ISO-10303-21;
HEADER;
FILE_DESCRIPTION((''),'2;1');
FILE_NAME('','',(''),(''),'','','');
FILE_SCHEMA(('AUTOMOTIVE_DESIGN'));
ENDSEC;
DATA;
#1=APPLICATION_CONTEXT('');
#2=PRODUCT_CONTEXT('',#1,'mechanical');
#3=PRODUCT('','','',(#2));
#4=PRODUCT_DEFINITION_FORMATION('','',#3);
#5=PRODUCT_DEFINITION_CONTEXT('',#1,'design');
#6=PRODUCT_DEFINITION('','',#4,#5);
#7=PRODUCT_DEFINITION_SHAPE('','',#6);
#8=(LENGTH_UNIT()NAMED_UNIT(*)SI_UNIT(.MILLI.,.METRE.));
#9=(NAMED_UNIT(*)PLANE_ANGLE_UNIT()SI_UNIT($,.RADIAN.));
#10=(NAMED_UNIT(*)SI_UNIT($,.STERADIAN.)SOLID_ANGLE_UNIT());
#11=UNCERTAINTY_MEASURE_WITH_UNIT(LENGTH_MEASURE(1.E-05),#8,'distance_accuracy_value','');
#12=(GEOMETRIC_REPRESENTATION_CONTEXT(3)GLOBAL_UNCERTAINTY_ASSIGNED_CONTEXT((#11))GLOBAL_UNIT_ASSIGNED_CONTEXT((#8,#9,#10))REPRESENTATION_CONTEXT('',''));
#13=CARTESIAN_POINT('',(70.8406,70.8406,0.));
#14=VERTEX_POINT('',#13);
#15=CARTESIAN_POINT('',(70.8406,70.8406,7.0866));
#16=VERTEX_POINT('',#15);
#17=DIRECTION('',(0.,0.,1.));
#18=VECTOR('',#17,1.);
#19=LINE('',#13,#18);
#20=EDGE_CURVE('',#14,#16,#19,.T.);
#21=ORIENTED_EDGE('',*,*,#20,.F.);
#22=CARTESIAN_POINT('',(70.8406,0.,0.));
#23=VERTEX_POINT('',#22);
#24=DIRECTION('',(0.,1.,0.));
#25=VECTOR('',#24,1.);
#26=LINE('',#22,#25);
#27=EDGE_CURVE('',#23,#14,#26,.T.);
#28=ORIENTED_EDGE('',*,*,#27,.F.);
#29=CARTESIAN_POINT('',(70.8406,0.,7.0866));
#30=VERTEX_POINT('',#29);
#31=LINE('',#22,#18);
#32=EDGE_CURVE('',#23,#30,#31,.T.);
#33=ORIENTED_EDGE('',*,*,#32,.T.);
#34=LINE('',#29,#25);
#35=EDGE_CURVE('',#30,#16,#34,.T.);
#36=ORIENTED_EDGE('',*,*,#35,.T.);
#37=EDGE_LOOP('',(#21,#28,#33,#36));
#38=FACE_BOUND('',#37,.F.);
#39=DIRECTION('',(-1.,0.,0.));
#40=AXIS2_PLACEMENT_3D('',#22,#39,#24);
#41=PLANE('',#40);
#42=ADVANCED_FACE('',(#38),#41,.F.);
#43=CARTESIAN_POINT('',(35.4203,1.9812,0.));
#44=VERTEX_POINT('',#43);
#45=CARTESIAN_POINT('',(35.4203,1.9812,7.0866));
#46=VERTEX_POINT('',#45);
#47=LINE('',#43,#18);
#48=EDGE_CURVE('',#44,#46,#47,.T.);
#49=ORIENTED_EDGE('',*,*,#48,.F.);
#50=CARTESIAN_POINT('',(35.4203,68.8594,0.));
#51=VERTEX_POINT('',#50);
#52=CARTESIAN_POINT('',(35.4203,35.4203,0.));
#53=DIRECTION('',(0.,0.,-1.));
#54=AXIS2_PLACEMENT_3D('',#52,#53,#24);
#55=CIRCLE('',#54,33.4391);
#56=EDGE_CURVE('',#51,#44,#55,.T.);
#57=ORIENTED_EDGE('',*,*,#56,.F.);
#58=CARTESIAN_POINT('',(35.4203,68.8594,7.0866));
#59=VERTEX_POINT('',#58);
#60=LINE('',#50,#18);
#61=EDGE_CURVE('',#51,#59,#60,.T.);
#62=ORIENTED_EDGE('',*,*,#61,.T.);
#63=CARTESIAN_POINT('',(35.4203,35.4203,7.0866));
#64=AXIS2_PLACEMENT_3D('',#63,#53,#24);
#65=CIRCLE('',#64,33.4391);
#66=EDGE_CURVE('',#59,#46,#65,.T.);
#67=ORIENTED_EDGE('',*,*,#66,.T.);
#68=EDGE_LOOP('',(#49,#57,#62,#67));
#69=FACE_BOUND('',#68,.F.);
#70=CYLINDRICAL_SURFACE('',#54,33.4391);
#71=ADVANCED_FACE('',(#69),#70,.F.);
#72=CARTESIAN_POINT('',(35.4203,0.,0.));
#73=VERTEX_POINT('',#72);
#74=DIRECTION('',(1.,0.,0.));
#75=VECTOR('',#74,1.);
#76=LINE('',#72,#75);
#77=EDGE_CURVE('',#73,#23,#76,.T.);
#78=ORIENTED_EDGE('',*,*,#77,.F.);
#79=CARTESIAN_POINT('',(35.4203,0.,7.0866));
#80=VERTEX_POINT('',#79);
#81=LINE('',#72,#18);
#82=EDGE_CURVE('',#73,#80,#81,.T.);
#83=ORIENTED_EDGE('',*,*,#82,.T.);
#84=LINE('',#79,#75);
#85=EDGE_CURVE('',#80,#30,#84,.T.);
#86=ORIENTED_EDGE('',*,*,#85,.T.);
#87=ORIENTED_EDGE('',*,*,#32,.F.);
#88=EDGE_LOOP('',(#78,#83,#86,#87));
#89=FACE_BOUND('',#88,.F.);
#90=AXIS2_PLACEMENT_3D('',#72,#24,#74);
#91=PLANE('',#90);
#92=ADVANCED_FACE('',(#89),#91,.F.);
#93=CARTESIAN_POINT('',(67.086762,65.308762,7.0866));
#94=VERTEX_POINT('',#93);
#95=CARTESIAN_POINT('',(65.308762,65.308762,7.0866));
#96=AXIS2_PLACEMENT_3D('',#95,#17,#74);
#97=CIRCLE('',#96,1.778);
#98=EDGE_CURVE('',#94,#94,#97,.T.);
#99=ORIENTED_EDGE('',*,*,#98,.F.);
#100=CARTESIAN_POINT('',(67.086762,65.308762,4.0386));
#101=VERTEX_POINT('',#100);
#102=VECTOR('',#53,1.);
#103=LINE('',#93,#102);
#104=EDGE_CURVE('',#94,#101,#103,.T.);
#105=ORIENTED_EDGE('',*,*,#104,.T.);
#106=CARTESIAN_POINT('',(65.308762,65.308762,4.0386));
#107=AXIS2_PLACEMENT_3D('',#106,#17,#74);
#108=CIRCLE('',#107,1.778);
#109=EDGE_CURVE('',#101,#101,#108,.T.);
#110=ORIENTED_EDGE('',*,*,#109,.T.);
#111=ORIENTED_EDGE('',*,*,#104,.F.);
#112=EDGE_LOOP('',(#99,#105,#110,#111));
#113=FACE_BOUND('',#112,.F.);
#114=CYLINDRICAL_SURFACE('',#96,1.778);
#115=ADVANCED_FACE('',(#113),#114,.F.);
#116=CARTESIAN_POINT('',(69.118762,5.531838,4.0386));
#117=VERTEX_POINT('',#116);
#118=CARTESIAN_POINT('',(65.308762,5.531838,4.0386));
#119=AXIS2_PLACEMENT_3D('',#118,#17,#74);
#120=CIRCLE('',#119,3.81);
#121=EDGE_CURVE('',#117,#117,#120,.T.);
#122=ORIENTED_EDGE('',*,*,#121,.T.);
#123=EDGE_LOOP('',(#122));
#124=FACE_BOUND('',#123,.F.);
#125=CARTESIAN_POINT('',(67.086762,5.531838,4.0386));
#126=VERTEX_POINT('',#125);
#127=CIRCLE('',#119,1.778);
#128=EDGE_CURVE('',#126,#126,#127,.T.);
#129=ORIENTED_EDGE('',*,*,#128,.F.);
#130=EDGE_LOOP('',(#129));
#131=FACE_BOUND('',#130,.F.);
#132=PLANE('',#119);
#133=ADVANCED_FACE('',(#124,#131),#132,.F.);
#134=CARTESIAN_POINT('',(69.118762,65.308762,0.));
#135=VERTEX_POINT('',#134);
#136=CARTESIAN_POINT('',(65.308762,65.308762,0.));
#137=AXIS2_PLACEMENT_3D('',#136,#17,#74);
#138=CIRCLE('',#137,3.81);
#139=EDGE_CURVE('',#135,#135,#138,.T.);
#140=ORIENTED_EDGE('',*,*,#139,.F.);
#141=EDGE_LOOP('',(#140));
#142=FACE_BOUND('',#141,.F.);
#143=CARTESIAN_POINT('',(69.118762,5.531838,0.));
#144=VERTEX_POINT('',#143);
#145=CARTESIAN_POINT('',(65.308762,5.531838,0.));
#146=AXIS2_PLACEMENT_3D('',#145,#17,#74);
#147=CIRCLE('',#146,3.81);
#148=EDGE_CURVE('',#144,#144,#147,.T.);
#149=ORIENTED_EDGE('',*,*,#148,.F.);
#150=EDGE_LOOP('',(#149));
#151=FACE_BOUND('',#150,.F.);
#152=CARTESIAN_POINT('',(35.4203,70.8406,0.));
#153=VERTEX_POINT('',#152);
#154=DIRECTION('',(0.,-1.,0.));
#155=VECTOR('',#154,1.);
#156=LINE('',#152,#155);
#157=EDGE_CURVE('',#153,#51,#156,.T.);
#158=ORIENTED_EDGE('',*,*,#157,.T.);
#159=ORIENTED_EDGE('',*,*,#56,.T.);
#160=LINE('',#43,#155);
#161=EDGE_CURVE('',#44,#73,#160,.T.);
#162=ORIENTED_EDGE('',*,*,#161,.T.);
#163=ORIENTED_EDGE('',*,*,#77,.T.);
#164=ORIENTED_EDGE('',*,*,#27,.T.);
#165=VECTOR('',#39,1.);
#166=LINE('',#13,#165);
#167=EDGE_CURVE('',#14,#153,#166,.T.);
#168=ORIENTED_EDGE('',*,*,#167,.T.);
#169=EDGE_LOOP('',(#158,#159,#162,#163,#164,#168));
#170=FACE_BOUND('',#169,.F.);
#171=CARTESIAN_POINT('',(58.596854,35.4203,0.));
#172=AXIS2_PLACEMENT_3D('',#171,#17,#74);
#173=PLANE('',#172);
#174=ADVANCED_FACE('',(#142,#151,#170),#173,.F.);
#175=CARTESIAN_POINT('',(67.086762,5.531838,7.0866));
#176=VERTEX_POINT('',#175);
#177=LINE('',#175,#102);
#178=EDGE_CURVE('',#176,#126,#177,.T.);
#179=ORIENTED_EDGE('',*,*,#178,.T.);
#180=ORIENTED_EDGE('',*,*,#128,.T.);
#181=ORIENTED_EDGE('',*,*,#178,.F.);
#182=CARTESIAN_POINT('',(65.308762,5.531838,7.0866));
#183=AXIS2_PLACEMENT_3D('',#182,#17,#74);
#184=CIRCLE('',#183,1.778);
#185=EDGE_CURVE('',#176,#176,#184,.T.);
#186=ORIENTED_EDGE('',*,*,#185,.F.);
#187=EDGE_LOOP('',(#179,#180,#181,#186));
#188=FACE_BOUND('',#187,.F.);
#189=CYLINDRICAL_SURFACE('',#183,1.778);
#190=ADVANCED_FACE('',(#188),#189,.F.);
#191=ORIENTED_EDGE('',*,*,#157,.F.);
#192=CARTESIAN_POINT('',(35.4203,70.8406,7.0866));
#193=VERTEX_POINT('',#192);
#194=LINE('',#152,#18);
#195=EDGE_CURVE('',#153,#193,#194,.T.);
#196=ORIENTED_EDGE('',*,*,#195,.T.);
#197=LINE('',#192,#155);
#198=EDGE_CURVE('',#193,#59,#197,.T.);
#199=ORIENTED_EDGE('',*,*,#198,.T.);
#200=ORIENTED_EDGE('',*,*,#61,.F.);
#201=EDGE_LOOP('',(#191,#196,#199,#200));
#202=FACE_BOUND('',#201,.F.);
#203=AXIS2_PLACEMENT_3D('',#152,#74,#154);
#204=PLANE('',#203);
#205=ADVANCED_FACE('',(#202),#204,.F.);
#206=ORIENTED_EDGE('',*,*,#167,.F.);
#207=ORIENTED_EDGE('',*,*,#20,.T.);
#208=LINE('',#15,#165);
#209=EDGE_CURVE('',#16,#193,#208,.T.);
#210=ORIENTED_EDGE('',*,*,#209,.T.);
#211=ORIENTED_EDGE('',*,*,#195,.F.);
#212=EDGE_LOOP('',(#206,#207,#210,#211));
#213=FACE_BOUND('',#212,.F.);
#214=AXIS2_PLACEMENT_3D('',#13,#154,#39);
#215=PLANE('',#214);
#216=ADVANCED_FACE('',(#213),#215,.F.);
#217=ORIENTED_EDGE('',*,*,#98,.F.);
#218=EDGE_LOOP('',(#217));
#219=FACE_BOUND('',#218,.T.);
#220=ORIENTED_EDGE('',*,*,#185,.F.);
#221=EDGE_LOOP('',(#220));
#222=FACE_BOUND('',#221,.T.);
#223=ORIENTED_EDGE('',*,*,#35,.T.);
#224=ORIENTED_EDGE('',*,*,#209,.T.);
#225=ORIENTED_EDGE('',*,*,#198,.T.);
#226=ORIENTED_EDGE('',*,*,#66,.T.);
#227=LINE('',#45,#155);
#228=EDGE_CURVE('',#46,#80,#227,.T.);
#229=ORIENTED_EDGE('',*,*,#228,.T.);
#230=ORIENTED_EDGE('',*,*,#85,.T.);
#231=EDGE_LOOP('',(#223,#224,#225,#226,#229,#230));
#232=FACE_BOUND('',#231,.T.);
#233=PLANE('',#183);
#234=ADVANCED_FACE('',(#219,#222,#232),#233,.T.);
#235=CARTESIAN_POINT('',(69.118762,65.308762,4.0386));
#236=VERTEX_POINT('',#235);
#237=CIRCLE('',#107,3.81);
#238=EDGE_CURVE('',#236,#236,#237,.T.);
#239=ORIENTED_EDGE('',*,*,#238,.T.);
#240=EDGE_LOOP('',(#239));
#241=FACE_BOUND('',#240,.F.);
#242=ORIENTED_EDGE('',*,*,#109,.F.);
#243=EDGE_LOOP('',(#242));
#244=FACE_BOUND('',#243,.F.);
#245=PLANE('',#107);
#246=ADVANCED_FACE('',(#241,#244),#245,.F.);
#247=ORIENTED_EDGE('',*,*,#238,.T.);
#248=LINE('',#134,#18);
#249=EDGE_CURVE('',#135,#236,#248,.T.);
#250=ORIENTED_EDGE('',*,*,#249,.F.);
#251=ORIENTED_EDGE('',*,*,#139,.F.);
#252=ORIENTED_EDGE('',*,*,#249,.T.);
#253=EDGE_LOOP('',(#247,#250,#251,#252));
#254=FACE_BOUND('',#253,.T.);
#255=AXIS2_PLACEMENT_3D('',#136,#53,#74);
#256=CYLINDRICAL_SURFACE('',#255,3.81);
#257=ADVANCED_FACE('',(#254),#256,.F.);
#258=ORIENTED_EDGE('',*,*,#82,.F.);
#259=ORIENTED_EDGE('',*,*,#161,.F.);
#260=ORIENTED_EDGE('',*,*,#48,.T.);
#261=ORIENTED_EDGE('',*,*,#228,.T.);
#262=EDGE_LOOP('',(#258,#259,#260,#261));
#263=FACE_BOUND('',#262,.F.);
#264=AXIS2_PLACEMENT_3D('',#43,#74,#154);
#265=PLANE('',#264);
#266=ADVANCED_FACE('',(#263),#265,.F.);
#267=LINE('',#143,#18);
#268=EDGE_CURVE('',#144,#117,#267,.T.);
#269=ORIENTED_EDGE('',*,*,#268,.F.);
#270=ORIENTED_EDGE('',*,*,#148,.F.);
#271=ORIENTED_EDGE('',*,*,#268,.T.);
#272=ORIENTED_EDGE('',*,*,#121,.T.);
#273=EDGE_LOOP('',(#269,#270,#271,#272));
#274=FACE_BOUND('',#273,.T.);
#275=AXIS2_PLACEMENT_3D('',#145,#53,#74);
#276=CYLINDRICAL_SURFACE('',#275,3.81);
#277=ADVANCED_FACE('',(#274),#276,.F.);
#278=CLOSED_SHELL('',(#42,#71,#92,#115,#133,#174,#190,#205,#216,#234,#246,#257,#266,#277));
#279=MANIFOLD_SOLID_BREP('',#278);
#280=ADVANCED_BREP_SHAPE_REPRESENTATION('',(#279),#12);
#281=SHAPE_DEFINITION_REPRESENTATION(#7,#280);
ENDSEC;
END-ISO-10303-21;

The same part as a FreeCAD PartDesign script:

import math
import FreeCAD as App
import Part
import Sketcher
Q = App.Units.Quantity

doc = App.newDocument("Part")
body = doc.addObject("PartDesign::Body", "Body")

# Sketch on XY plane
sketch1 = body.newObject("Sketcher::SketchObject", "Sketch")
sketch1.AttachmentSupport = (doc.getObject("XY_Plane"), [""])
sketch1.MapMode = "FlatFace"
sketch1.addGeometry([
    Part.LineSegment(App.Vector(35.4203, 1.9812, 0), App.Vector(35.4203, 0, 0)),  # 0
    Part.LineSegment(App.Vector(35.4203, 0, 0), App.Vector(70.8406, 0, 0)),  # 1
    Part.LineSegment(App.Vector(70.8406, 0, 0), App.Vector(70.8406, 70.8406, 0)),  # 2
    Part.LineSegment(App.Vector(70.8406, 70.8406, 0), App.Vector(35.4203, 70.8406, 0)),  # 3
    Part.LineSegment(App.Vector(35.4203, 70.8406, 0), App.Vector(35.4203, 68.8594, 0)),  # 4
    Part.ArcOfCircle(Part.Circle(App.Vector(35.4203, 35.4203, 0), App.Vector(0, 0, 1), 33.4391), math.radians(-90), math.radians(90)),  # 5
    Part.Circle(App.Vector(65.308762, 5.531838, 0), App.Vector(0, 0, 1), 3.81),  # 6
    Part.Circle(App.Vector(65.308762, 65.308762, 0), App.Vector(0, 0, 1), 3.81),  # 7
], False)
sketch1.addConstraint([
    Sketcher.Constraint("Coincident", 0, 2, 1, 1),
    Sketcher.Constraint("Coincident", 1, 2, 2, 1),
    Sketcher.Constraint("Coincident", 2, 2, 3, 1),
    Sketcher.Constraint("Coincident", 3, 2, 4, 1),
    Sketcher.Constraint("Coincident", 4, 2, 5, 2),
    Sketcher.Constraint("Coincident", 5, 1, 0, 1),
    Sketcher.Constraint("Vertical", 0),
    Sketcher.Constraint("Horizontal", 1),
    Sketcher.Constraint("Vertical", 2),
    Sketcher.Constraint("Horizontal", 3),
    Sketcher.Constraint("Vertical", 4),
    Sketcher.Constraint("Equal", 6, 7),
    Sketcher.Constraint("PointOnObject", 0, 2, -1),
    Sketcher.Constraint("Vertical", 6, 3, 7, 3),
    Sketcher.Constraint("Vertical", 5, 3, 0, 2),
    Sketcher.Constraint("Vertical", 0, 2, 3, 2),
    Sketcher.Constraint("Equal", 0, 4),
    Sketcher.Constraint("Diameter", 6, Q("0.3 in")),
    Sketcher.Constraint("Radius", 5, Q("1.3165 in")),
    Sketcher.Constraint("DistanceY", 0, 2, 0, 1, Q("0.078 in")),
    Sketcher.Constraint("DistanceX", 1, 1, 1, 2, Q("1.3945 in")),
    Sketcher.Constraint("DistanceX", -1, 1, 1, 2, Q("2.789 in")),
    Sketcher.Constraint("DistanceX", -1, 1, 6, 3, 65.308762),
    Sketcher.Constraint("DistanceY", -1, 1, 7, 3, 65.308762),
    Sketcher.Constraint("DistanceY", 6, 3, 5, 3, 29.888462),
])
pad1 = body.newObject("PartDesign::Pad", "Pad")
pad1.Profile = sketch1
pad1.Length = Q("0.279 in")

# Sketch on XY plane
sketch2 = body.newObject("Sketcher::SketchObject", "Sketch001")
sketch2.AttachmentSupport = (doc.getObject("XY_Plane"), [""])
sketch2.MapMode = "FlatFace"
sketch2.AttachmentOffset = App.Placement(App.Vector(0, 0, 0.279 * 25.4), App.Rotation())
sketch2.addGeometry([
    Part.Circle(App.Vector(65.308762, 5.531838, 0), App.Vector(0, 0, 1), 3.81),
    Part.Circle(App.Vector(65.308762, 5.531838, 0), App.Vector(0, 0, 1), 1.778),
    Part.Circle(App.Vector(65.308762, 65.308762, 0), App.Vector(0, 0, 1), 3.81),
    Part.Circle(App.Vector(65.308762, 65.308762, 0), App.Vector(0, 0, 1), 1.778),
], False)
sketch2.addConstraint([
    Sketcher.Constraint("Coincident", 1, 3, 0, 3),
    Sketcher.Constraint("Coincident", 3, 3, 2, 3),
    Sketcher.Constraint("Equal", 0, 2),
    Sketcher.Constraint("Equal", 1, 3),
    Sketcher.Constraint("Vertical", 1, 3, 2, 3),
    Sketcher.Constraint("Diameter", 0, Q("0.3 in")),
    Sketcher.Constraint("Diameter", 1, Q("0.14 in")),
    Sketcher.Constraint("DistanceX", -1, 1, 0, 3, 65.308762),
    Sketcher.Constraint("DistanceY", -1, 1, 2, 3, 65.308762),
    Sketcher.Constraint("DistanceY", -1, 1, 0, 3, 5.531838),
])
pad2 = body.newObject("PartDesign::Pad", "Pad001")
pad2.Profile = sketch2
pad2.Length = Q("0.12 in")
pad2.Reversed = True

# Sketch on XY plane
sketch3 = body.newObject("Sketcher::SketchObject", "Sketch002")
sketch3.AttachmentSupport = (doc.getObject("XY_Plane"), [""])
sketch3.MapMode = "FlatFace"
sketch3.AttachmentOffset = App.Placement(App.Vector(0, 0, 0.279 * 25.4), App.Rotation())
sketch3.addGeometry([
    Part.Circle(App.Vector(65.308762, 5.531838, 0), App.Vector(0, 0, 1), 1.778),
    Part.Circle(App.Vector(65.308762, 65.308762, 0), App.Vector(0, 0, 1), 1.778),
], False)
sketch3.addConstraint([
    Sketcher.Constraint("Equal", 0, 1),
    Sketcher.Constraint("Vertical", 0, 3, 1, 3),
    Sketcher.Constraint("Diameter", 0, Q("0.14 in")),
    Sketcher.Constraint("DistanceX", -1, 1, 0, 3, 65.308762),
    Sketcher.Constraint("DistanceY", -1, 1, 1, 3, 65.308762),
    Sketcher.Constraint("DistanceY", -1, 1, 0, 3, 5.531838),
])
pocket1 = body.newObject("PartDesign::Pocket", "Pocket")
pocket1.Profile = sketch3
pocket1.Length = Q("1 in")

doc.recompute()
